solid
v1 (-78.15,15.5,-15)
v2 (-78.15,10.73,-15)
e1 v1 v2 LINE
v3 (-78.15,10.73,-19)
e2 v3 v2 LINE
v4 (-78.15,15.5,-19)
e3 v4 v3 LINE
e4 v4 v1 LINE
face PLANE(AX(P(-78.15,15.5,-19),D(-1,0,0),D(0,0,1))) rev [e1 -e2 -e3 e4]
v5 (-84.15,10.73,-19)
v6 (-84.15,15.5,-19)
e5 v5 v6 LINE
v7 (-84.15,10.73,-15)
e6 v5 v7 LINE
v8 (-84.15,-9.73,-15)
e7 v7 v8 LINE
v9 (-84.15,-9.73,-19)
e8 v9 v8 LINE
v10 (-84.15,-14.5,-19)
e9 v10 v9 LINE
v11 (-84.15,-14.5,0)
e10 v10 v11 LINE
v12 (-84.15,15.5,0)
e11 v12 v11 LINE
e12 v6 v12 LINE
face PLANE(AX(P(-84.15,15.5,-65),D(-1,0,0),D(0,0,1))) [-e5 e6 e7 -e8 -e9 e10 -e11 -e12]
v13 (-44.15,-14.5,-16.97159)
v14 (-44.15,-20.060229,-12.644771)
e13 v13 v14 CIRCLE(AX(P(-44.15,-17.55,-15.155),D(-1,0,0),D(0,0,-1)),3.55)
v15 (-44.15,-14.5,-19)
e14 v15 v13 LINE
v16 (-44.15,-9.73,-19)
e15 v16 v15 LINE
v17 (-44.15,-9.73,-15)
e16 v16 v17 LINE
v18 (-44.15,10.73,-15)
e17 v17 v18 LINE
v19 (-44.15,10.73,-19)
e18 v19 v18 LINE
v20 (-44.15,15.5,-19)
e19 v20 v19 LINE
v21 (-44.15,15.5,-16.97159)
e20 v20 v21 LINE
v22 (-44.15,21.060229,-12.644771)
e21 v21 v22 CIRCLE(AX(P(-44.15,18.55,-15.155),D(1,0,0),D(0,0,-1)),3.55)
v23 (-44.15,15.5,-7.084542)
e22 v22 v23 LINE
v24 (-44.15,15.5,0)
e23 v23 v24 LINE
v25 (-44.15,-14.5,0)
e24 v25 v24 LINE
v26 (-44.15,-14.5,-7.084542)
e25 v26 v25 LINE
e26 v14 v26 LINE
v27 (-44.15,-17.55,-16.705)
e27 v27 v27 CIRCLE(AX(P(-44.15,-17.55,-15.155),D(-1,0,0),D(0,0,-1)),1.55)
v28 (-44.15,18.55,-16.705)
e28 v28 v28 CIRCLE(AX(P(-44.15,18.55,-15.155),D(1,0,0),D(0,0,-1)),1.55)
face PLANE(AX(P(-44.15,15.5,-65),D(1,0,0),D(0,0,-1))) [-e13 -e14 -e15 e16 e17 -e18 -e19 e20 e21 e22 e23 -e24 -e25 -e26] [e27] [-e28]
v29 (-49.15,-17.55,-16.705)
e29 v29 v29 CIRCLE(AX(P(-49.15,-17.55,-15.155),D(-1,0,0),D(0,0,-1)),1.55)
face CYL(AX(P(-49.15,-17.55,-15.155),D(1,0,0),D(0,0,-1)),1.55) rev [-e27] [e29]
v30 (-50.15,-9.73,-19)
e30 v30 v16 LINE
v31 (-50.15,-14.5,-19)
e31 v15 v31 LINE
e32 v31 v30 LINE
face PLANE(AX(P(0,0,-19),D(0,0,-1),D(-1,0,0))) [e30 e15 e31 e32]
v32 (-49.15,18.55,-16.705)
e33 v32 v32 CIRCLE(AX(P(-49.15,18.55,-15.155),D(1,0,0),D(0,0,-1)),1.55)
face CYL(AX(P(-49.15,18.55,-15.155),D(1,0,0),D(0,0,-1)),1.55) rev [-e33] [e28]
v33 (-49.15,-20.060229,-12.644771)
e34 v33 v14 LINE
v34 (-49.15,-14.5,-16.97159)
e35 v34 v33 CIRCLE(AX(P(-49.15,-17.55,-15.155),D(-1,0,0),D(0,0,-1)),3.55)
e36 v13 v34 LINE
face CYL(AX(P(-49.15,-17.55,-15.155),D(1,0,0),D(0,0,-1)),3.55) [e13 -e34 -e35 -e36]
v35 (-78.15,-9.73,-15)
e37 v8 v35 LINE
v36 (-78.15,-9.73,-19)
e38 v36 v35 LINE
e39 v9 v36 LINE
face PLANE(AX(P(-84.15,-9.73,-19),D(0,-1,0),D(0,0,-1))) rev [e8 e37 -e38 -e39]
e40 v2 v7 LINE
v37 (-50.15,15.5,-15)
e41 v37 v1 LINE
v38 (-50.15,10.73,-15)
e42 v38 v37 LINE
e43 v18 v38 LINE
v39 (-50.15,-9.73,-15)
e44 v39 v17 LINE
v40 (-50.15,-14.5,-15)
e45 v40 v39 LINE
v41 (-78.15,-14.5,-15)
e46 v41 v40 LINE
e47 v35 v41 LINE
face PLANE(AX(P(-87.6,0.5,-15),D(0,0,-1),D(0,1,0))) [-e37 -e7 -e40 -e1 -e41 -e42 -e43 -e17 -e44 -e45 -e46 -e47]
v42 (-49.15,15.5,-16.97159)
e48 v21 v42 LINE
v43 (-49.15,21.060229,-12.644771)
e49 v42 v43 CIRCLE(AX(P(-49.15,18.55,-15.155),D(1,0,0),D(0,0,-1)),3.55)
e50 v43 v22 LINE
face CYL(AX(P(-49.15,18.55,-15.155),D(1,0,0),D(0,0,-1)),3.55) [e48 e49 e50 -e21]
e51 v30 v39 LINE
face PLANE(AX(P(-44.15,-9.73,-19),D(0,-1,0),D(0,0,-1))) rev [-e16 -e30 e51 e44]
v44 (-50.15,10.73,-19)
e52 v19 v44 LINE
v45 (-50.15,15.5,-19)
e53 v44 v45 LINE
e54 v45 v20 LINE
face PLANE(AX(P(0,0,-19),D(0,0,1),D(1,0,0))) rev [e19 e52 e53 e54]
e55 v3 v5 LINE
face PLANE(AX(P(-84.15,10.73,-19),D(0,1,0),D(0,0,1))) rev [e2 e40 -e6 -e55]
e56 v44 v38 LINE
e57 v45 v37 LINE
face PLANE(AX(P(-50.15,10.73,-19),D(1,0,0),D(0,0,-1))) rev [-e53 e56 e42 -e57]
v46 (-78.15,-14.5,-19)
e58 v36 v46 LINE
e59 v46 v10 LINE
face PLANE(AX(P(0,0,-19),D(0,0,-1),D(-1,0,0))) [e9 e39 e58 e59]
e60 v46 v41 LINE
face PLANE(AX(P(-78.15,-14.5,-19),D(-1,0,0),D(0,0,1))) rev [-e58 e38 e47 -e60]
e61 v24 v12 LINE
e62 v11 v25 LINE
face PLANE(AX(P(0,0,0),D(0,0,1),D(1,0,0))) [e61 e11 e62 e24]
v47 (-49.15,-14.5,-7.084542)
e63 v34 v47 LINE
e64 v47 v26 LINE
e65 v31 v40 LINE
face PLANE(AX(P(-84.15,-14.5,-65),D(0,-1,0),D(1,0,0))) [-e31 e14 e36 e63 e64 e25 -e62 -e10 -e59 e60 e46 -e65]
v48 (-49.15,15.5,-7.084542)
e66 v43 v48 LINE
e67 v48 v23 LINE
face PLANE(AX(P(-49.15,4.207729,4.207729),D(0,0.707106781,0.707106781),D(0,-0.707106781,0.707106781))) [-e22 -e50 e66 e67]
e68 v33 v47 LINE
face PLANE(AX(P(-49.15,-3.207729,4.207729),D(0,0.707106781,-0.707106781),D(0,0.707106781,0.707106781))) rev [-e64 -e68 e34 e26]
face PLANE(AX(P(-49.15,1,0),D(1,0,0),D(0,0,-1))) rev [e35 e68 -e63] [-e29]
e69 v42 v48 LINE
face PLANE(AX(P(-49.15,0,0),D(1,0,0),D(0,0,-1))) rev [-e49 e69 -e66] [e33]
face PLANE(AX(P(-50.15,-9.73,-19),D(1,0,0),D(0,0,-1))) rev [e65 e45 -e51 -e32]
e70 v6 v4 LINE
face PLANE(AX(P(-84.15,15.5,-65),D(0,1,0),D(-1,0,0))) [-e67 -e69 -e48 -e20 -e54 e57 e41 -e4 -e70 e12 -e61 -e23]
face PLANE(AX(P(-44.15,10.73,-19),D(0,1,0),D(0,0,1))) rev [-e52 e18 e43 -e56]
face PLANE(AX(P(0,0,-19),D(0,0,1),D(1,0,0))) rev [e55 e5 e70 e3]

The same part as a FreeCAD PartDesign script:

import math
import FreeCAD as App
import Part
import Sketcher
from FreeCAD import Vector
Q = App.Units.Quantity


def add_polygon(sketch, points):
    """Adds a closed chain of lines whose ends are joined by coincident constraints."""
    first, n = sketch.GeometryCount, len(points)
    for a, b in zip(points, points[1:] + points[:1]):
        sketch.addGeometry(Part.LineSegment(App.Vector(*a, 0), App.Vector(*b, 0)), False)
    for i in range(n):
        sketch.addConstraint(Sketcher.Constraint("Coincident", first + i, 2, first + (i + 1) % n, 1))

doc = App.newDocument("Part")
body = doc.addObject("PartDesign::Body", "Body")

# Sketch on XY plane
sketch1 = body.newObject("Sketcher::SketchObject", "Sketch")
sketch1.AttachmentSupport = (doc.getObject("XY_Plane"), [""])
sketch1.MapMode = "FlatFace"
add_polygon(sketch1, [(-84, 16), (-84, -14), (-44, -14), (-44, 16)])  # lines 0-3
sketch1.addConstraint(Sketcher.Constraint("Vertical", 0))
sketch1.addConstraint(Sketcher.Constraint("Horizontal", 1))
sketch1.addConstraint(Sketcher.Constraint("Vertical", 2))
sketch1.addConstraint(Sketcher.Constraint("Horizontal", 3))
sketch1.addConstraint(Sketcher.Constraint("DistanceX", 1, 1, 1, 2, Q("40 mm")))
sketch1.addConstraint(Sketcher.Constraint("DistanceY", 0, 2, 0, 1, Q("30 mm")))
sketch1.addConstraint(Sketcher.Constraint("DistanceY", 0, 2, -1, 1, Q("14.5 mm")))
sketch1.addConstraint(Sketcher.Constraint("DistanceX", 0, 2, -1, 1, Q("84.15 mm")))
pad1 = body.newObject("PartDesign::Pad", "Pad")
pad1.Profile = sketch1
pad1.Length = 15
pad1.Reversed = True

# Sketch on YZ plane
sketch2 = body.newObject("Sketcher::SketchObject", "Sketch001")
sketch2.AttachmentSupport = (doc.getObject("YZ_Plane"), [""])
sketch2.MapMode = "FlatFace"
sketch2.AttachmentOffset = App.Placement(Vector(0, 0, -44.15), App.Rotation())
sketch2.addGeometry(Part.LineSegment(Vector(15.5, -7.08, 0), Vector(15.5, -15, 0)), False)
sketch2.addGeometry(Part.LineSegment(Vector(15.5, -15, 0), Vector(15, -15, 0)), False)
sketch2.addGeometry(Part.ArcOfCircle(Part.Circle(Vector(18.55, -15.15, 0), Vector(0, 0, 1), 3.55), math.radians(177), math.radians(405)), False)
sketch2.addGeometry(Part.LineSegment(Vector(21.06, -12.64, 0), Vector(15.5, -7.08, 0)), False)
sketch2.addGeometry(Part.Circle(Vector(18.55, -15.15, 0), Vector(0, 0, 1), 1.55), False)
sketch2.addConstraint(Sketcher.Constraint("Coincident", 0, 2, 1, 1))
sketch2.addConstraint(Sketcher.Constraint("Coincident", 1, 2, 2, 1))
sketch2.addConstraint(Sketcher.Constraint("Tangent", 2, 2, 3, 1))
sketch2.addConstraint(Sketcher.Constraint("Coincident", 3, 2, 0, 1))
sketch2.addConstraint(Sketcher.Constraint("Vertical", 0))
sketch2.addConstraint(Sketcher.Constraint("Horizontal", 1))
sketch2.addConstraint(Sketcher.Constraint("Coincident", 4, 3, 2, 3))
sketch2.addConstraint(Sketcher.Constraint("Diameter", 4, Q("3.1 mm")))
sketch2.addConstraint(Sketcher.Constraint("Angle", 3, Q("135 deg")))
sketch2.addConstraint(Sketcher.Constraint("Radius", 2, Q("3.55 mm")))
sketch2.addConstraint(Sketcher.Constraint("DistanceY", 0, 2, -1, 1, Q("15 mm")))
sketch2.addConstraint(Sketcher.Constraint("DistanceX", -1, 1, 0, 2, Q("15.5 mm")))
sketch2.addConstraint(Sketcher.Constraint("DistanceX", -1, 1, 2, 3, Q("18.55 mm")))
sketch2.addConstraint(Sketcher.Constraint("DistanceY", 2, 3, -1, 1, Q("15.155 mm")))
pad2 = body.newObject("PartDesign::Pad", "Pad001")
pad2.Profile = sketch2
pad2.Length = 5
pad2.Reversed = True
doc.recompute()

datumplane = body.newObject("PartDesign::Plane", "DatumPlane")
datumplane.AttachmentSupport = (doc.getObject("XZ_Plane"), [""])
datumplane.MapMode = "FlatFace"
datumplane.AttachmentOffset = App.Placement(Vector(0, 0, -0.5), App.Rotation())
mirrored = body.newObject("PartDesign::Mirrored", "Mirrored")
mirrored.Originals = [pad2]
mirrored.MirrorPlane = (datumplane, [""])
body.Tip = mirrored

# Sketch on XY plane
sketch3 = body.newObject("Sketcher::SketchObject", "Sketch002")
sketch3.AttachmentSupport = (doc.getObject("XY_Plane"), [""])
sketch3.MapMode = "FlatFace"
sketch3.AttachmentOffset = App.Placement(Vector(0, 0, -15), App.Rotation())
add_polygon(sketch3, [(-44.1, 15.5), (-44.1, 10.7), (-50.1, 10.7), (-50.1, 15.5)])  # lines 0-3
add_polygon(sketch3, [(-78.2, 15.5), (-78.2, 10.7), (-84.2, 10.7), (-84.2, 15.5)])  # lines 4-7
add_polygon(sketch3, [(-78.2, -9.7), (-78.2, -14.5), (-84.2, -14.5), (-84.2, -9.7)])  # lines 8-11
add_polygon(sketch3, [(-44.1, -9.7), (-44.1, -14.5), (-50.1, -14.5), (-50.1, -9.7)])  # lines 12-15
sketch3.addConstraint(Sketcher.Constraint("Vertical", 0))
sketch3.addConstraint(Sketcher.Constraint("Horizontal", 1))
sketch3.addConstraint(Sketcher.Constraint("Vertical", 2))
sketch3.addConstraint(Sketcher.Constraint("Horizontal", 3))
sketch3.addConstraint(Sketcher.Constraint("Vertical", 4))
sketch3.addConstraint(Sketcher.Constraint("Horizontal", 5))
sketch3.addConstraint(Sketcher.Constraint("Vertical", 6))
sketch3.addConstraint(Sketcher.Constraint("Horizontal", 7))
sketch3.addConstraint(Sketcher.Constraint("Vertical", 8))
sketch3.addConstraint(Sketcher.Constraint("Horizontal", 9))
sketch3.addConstraint(Sketcher.Constraint("Vertical", 10))
sketch3.addConstraint(Sketcher.Constraint("Horizontal", 11))
sketch3.addConstraint(Sketcher.Constraint("Vertical", 12))
sketch3.addConstraint(Sketcher.Constraint("Horizontal", 13))
sketch3.addConstraint(Sketcher.Constraint("Vertical", 14))
sketch3.addConstraint(Sketcher.Constraint("Horizontal", 15))
sketch3.addConstraint(Sketcher.Constraint("Horizontal", 1, 2, 4, 2))
sketch3.addConstraint(Sketcher.Constraint("Horizontal", 3, 2, 6, 2))
sketch3.addConstraint(Sketcher.Constraint("Horizontal", 9, 2, 12, 2))
sketch3.addConstraint(Sketcher.Constraint("Horizontal", 11, 2, 14, 2))
sketch3.addConstraint(Sketcher.Constraint("Vertical", 7, 2, 8, 2))
sketch3.addConstraint(Sketcher.Constraint("Vertical", 6, 2, 9, 2))
sketch3.addConstraint(Sketcher.Constraint("Vertical", 3, 2, 12, 2))
sketch3.addConstraint(Sketcher.Constraint("Vertical", 2, 2, 13, 2))
sketch3.addConstraint(Sketcher.Constraint("Equal", 3, 5))
sketch3.addConstraint(Sketcher.Constraint("Equal", 6, 8))
sketch3.addConstraint(Sketcher.Constraint("DistanceX", 1, 2, 1, 1, Q("6 mm")))
sketch3.addConstraint(Sketcher.Constraint("DistanceX", 4, 2, 1, 2, Q("28 mm")))
sketch3.addConstraint(Sketcher.Constraint("DistanceY", 8, 2, 7, 2, Q("30 mm")))
sketch3.addConstraint(Sketcher.Constraint("DistanceY", 0, 2, 0, 1, Q("4.77 mm")))
sketch3.addConstraint(Sketcher.Constraint("DistanceY", -1, 1, 2, 2, Q("15.5 mm")))
sketch3.addConstraint(Sketcher.Constraint("DistanceX", 0, 2, -1, 1, Q("44.15 mm")))
pad3 = body.newObject("PartDesign::Pad", "Pad002")
pad3.Profile = sketch3
pad3.Length = 4
pad3.Reversed = True

doc.recompute()
